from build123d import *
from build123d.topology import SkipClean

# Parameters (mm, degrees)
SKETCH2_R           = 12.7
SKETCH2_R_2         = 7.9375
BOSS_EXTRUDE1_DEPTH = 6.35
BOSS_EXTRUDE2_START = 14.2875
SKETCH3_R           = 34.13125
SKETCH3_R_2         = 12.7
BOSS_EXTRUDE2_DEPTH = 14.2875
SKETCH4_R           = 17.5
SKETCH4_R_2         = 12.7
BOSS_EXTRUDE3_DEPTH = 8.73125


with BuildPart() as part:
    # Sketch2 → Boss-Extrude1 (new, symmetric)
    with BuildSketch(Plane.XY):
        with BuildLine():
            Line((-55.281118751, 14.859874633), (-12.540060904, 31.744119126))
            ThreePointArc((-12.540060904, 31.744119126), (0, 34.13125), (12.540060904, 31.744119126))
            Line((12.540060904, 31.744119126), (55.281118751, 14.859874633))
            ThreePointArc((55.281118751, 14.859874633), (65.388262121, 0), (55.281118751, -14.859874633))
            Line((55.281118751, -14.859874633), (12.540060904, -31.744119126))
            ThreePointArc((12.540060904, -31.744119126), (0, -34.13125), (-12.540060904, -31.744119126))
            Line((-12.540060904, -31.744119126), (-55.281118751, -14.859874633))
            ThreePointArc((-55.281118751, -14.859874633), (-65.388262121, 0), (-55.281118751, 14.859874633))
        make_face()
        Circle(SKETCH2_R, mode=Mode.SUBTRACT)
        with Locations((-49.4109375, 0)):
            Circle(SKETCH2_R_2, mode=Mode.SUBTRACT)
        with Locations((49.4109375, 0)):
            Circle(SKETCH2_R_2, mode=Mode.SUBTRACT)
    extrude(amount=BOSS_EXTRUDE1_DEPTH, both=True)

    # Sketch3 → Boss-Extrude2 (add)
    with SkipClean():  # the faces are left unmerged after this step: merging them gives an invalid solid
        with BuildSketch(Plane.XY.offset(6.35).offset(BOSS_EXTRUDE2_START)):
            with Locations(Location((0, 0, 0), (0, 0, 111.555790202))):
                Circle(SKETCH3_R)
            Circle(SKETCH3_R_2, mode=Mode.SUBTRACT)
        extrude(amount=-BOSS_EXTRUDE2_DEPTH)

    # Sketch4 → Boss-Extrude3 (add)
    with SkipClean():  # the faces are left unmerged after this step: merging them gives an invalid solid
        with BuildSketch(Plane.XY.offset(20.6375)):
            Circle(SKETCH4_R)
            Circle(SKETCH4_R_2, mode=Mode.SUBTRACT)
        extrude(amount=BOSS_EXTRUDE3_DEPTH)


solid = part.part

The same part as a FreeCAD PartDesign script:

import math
import FreeCAD as App
import Part
import Sketcher
Q = App.Units.Quantity

doc = App.newDocument("Part")
body = doc.addObject("PartDesign::Body", "Body")

# Sketch on XY plane
sketch1 = body.newObject("Sketcher::SketchObject", "Sketch")
sketch1.AttachmentSupport = (doc.getObject("XY_Plane"), [""])
sketch1.MapMode = "FlatFace"
sketch1.addGeometry(Part.LineSegment(App.Vector(-12.540061, 31.744119, 0), App.Vector(-55.281119, 14.859875, 0)), False)
sketch1.addGeometry(Part.ArcOfCircle(Part.Circle(App.Vector(-49.410938, 0, 0), App.Vector(0, 0, 1), 15.977325), math.radians(111.55579), math.radians(248.44421)), False)
sketch1.addGeometry(Part.LineSegment(App.Vector(-55.281119, -14.859875, 0), App.Vector(-12.540061, -31.744119, 0)), False)
sketch1.addGeometry(Part.ArcOfCircle(Part.Circle(App.Vector(0, 0, 0), App.Vector(0, 0, 1), 34.13125), math.radians(-111.55579), math.radians(-68.44421)), False)
sketch1.addGeometry(Part.LineSegment(App.Vector(12.540061, -31.744119, 0), App.Vector(55.281119, -14.859875, 0)), False)
sketch1.addGeometry(Part.ArcOfCircle(Part.Circle(App.Vector(49.410938, 0, 0), App.Vector(0, 0, 1), 15.977325), math.radians(-68.44421), math.radians(68.44421)), False)
sketch1.addGeometry(Part.LineSegment(App.Vector(55.281119, 14.859875, 0), App.Vector(12.540061, 31.744119, 0)), False)
sketch1.addGeometry(Part.ArcOfCircle(Part.Circle(App.Vector(0, 0, 0), App.Vector(0, 0, 1), 34.13125), math.radians(68.44421), math.radians(111.55579)), False)
sketch1.addGeometry(Part.Circle(App.Vector(49.410938, 0, 0), App.Vector(0, 0, 1), 7.9375), False)
sketch1.addGeometry(Part.Circle(App.Vector(0, 0, 0), App.Vector(0, 0, 1), 12.7), False)
sketch1.addGeometry(Part.Circle(App.Vector(-49.410938, 0, 0), App.Vector(0, 0, 1), 7.9375), False)
sketch1.addConstraint(Sketcher.Constraint("Tangent", 0, 2, 1, 1))
sketch1.addConstraint(Sketcher.Constraint("Tangent", 1, 2, 2, 1))
sketch1.addConstraint(Sketcher.Constraint("Tangent", 2, 2, 3, 1))
sketch1.addConstraint(Sketcher.Constraint("Tangent", 3, 2, 4, 1))
sketch1.addConstraint(Sketcher.Constraint("Tangent", 4, 2, 5, 1))
sketch1.addConstraint(Sketcher.Constraint("Tangent", 5, 2, 6, 1))
sketch1.addConstraint(Sketcher.Constraint("Tangent", 6, 2, 7, 1))
sketch1.addConstraint(Sketcher.Constraint("Tangent", 7, 2, 0, 1))
sketch1.addConstraint(Sketcher.Constraint("Coincident", 3, 3, -1, 1))
sketch1.addConstraint(Sketcher.Constraint("Coincident", 7, 3, -1, 1))
sketch1.addConstraint(Sketcher.Constraint("Coincident", 9, 3, -1, 1))
sketch1.addConstraint(Sketcher.Constraint("Coincident", 8, 3, 5, 3))
sketch1.addConstraint(Sketcher.Constraint("Coincident", 10, 3, 1, 3))
sketch1.addConstraint(Sketcher.Constraint("Equal", 1, 5))
sketch1.addConstraint(Sketcher.Constraint("Equal", 3, 7))
sketch1.addConstraint(Sketcher.Constraint("Equal", 8, 10))
sketch1.addConstraint(Sketcher.Constraint("Symmetric", 1, 3, 5, 3, -1, 1))
sketch1.addConstraint(Sketcher.Constraint("PointOnObject", 1, 3, -1))
sketch1.addConstraint(Sketcher.Constraint("Diameter", 9, Q("1 in")))
sketch1.addConstraint(Sketcher.Constraint("Diameter", 8, Q("0.625 in")))
sketch1.addConstraint(Sketcher.Constraint("Radius", 3, Q("1.34375 in")))
sketch1.addConstraint(Sketcher.Constraint("DistanceX", 1, 3, 5, 3, Q("3.890625 in")))
sketch1.addConstraint(Sketcher.Constraint("Radius", 1, Q("15.977325 mm")))
pad1 = body.newObject("PartDesign::Pad", "Pad")
pad1.Profile = sketch1
pad1.Length = Q("0.5 in")
pad1.Midplane = True

# Sketch on XY plane
sketch2 = body.newObject("Sketcher::SketchObject", "Sketch001")
sketch2.AttachmentSupport = (doc.getObject("XY_Plane"), [""])
sketch2.MapMode = "FlatFace"
sketch2.AttachmentOffset = App.Placement(App.Vector(0, 0, 0.8125 * 25.4), App.Rotation())
sketch2.addGeometry(Part.Circle(App.Vector(0, 0, 0), App.Vector(0, 0, 1), 34.13125), False)
sketch2.addGeometry(Part.Circle(App.Vector(0, 0, 0), App.Vector(0, 0, 1), 12.7), False)
sketch2.addConstraint(Sketcher.Constraint("Coincident", 0, 3, -1, 1))
sketch2.addConstraint(Sketcher.Constraint("Coincident", 1, 3, -1, 1))
sketch2.addConstraint(Sketcher.Constraint("Diameter", 1, Q("1 in")))
sketch2.addConstraint(Sketcher.Constraint("Diameter", 0, Q("2.6875 in")))
pad2 = body.newObject("PartDesign::Pad", "Pad001")
pad2.Profile = sketch2
pad2.Length = Q("0.5625 in")
pad2.Reversed = True

# Sketch on XY plane
sketch3 = body.newObject("Sketcher::SketchObject", "Sketch002")
sketch3.AttachmentSupport = (doc.getObject("XY_Plane"), [""])
sketch3.MapMode = "FlatFace"
sketch3.AttachmentOffset = App.Placement(App.Vector(0, 0, 0.8125 * 25.4), App.Rotation())
sketch3.addGeometry(Part.Circle(App.Vector(0, 0, 0), App.Vector(0, 0, 1), 17.5), False)
sketch3.addGeometry(Part.Circle(App.Vector(0, 0, 0), App.Vector(0, 0, 1), 12.7), False)
sketch3.addConstraint(Sketcher.Constraint("Coincident", 0, 3, -1, 1))
sketch3.addConstraint(Sketcher.Constraint("Coincident", 1, 3, -1, 1))
sketch3.addConstraint(Sketcher.Constraint("Diameter", 1, Q("1 in")))
sketch3.addConstraint(Sketcher.Constraint("Diameter", 0, Q("35 mm")))
pad3 = body.newObject("PartDesign::Pad", "Pad002")
pad3.Profile = sketch3
pad3.Length = Q("0.34375 in")

doc.recompute()
